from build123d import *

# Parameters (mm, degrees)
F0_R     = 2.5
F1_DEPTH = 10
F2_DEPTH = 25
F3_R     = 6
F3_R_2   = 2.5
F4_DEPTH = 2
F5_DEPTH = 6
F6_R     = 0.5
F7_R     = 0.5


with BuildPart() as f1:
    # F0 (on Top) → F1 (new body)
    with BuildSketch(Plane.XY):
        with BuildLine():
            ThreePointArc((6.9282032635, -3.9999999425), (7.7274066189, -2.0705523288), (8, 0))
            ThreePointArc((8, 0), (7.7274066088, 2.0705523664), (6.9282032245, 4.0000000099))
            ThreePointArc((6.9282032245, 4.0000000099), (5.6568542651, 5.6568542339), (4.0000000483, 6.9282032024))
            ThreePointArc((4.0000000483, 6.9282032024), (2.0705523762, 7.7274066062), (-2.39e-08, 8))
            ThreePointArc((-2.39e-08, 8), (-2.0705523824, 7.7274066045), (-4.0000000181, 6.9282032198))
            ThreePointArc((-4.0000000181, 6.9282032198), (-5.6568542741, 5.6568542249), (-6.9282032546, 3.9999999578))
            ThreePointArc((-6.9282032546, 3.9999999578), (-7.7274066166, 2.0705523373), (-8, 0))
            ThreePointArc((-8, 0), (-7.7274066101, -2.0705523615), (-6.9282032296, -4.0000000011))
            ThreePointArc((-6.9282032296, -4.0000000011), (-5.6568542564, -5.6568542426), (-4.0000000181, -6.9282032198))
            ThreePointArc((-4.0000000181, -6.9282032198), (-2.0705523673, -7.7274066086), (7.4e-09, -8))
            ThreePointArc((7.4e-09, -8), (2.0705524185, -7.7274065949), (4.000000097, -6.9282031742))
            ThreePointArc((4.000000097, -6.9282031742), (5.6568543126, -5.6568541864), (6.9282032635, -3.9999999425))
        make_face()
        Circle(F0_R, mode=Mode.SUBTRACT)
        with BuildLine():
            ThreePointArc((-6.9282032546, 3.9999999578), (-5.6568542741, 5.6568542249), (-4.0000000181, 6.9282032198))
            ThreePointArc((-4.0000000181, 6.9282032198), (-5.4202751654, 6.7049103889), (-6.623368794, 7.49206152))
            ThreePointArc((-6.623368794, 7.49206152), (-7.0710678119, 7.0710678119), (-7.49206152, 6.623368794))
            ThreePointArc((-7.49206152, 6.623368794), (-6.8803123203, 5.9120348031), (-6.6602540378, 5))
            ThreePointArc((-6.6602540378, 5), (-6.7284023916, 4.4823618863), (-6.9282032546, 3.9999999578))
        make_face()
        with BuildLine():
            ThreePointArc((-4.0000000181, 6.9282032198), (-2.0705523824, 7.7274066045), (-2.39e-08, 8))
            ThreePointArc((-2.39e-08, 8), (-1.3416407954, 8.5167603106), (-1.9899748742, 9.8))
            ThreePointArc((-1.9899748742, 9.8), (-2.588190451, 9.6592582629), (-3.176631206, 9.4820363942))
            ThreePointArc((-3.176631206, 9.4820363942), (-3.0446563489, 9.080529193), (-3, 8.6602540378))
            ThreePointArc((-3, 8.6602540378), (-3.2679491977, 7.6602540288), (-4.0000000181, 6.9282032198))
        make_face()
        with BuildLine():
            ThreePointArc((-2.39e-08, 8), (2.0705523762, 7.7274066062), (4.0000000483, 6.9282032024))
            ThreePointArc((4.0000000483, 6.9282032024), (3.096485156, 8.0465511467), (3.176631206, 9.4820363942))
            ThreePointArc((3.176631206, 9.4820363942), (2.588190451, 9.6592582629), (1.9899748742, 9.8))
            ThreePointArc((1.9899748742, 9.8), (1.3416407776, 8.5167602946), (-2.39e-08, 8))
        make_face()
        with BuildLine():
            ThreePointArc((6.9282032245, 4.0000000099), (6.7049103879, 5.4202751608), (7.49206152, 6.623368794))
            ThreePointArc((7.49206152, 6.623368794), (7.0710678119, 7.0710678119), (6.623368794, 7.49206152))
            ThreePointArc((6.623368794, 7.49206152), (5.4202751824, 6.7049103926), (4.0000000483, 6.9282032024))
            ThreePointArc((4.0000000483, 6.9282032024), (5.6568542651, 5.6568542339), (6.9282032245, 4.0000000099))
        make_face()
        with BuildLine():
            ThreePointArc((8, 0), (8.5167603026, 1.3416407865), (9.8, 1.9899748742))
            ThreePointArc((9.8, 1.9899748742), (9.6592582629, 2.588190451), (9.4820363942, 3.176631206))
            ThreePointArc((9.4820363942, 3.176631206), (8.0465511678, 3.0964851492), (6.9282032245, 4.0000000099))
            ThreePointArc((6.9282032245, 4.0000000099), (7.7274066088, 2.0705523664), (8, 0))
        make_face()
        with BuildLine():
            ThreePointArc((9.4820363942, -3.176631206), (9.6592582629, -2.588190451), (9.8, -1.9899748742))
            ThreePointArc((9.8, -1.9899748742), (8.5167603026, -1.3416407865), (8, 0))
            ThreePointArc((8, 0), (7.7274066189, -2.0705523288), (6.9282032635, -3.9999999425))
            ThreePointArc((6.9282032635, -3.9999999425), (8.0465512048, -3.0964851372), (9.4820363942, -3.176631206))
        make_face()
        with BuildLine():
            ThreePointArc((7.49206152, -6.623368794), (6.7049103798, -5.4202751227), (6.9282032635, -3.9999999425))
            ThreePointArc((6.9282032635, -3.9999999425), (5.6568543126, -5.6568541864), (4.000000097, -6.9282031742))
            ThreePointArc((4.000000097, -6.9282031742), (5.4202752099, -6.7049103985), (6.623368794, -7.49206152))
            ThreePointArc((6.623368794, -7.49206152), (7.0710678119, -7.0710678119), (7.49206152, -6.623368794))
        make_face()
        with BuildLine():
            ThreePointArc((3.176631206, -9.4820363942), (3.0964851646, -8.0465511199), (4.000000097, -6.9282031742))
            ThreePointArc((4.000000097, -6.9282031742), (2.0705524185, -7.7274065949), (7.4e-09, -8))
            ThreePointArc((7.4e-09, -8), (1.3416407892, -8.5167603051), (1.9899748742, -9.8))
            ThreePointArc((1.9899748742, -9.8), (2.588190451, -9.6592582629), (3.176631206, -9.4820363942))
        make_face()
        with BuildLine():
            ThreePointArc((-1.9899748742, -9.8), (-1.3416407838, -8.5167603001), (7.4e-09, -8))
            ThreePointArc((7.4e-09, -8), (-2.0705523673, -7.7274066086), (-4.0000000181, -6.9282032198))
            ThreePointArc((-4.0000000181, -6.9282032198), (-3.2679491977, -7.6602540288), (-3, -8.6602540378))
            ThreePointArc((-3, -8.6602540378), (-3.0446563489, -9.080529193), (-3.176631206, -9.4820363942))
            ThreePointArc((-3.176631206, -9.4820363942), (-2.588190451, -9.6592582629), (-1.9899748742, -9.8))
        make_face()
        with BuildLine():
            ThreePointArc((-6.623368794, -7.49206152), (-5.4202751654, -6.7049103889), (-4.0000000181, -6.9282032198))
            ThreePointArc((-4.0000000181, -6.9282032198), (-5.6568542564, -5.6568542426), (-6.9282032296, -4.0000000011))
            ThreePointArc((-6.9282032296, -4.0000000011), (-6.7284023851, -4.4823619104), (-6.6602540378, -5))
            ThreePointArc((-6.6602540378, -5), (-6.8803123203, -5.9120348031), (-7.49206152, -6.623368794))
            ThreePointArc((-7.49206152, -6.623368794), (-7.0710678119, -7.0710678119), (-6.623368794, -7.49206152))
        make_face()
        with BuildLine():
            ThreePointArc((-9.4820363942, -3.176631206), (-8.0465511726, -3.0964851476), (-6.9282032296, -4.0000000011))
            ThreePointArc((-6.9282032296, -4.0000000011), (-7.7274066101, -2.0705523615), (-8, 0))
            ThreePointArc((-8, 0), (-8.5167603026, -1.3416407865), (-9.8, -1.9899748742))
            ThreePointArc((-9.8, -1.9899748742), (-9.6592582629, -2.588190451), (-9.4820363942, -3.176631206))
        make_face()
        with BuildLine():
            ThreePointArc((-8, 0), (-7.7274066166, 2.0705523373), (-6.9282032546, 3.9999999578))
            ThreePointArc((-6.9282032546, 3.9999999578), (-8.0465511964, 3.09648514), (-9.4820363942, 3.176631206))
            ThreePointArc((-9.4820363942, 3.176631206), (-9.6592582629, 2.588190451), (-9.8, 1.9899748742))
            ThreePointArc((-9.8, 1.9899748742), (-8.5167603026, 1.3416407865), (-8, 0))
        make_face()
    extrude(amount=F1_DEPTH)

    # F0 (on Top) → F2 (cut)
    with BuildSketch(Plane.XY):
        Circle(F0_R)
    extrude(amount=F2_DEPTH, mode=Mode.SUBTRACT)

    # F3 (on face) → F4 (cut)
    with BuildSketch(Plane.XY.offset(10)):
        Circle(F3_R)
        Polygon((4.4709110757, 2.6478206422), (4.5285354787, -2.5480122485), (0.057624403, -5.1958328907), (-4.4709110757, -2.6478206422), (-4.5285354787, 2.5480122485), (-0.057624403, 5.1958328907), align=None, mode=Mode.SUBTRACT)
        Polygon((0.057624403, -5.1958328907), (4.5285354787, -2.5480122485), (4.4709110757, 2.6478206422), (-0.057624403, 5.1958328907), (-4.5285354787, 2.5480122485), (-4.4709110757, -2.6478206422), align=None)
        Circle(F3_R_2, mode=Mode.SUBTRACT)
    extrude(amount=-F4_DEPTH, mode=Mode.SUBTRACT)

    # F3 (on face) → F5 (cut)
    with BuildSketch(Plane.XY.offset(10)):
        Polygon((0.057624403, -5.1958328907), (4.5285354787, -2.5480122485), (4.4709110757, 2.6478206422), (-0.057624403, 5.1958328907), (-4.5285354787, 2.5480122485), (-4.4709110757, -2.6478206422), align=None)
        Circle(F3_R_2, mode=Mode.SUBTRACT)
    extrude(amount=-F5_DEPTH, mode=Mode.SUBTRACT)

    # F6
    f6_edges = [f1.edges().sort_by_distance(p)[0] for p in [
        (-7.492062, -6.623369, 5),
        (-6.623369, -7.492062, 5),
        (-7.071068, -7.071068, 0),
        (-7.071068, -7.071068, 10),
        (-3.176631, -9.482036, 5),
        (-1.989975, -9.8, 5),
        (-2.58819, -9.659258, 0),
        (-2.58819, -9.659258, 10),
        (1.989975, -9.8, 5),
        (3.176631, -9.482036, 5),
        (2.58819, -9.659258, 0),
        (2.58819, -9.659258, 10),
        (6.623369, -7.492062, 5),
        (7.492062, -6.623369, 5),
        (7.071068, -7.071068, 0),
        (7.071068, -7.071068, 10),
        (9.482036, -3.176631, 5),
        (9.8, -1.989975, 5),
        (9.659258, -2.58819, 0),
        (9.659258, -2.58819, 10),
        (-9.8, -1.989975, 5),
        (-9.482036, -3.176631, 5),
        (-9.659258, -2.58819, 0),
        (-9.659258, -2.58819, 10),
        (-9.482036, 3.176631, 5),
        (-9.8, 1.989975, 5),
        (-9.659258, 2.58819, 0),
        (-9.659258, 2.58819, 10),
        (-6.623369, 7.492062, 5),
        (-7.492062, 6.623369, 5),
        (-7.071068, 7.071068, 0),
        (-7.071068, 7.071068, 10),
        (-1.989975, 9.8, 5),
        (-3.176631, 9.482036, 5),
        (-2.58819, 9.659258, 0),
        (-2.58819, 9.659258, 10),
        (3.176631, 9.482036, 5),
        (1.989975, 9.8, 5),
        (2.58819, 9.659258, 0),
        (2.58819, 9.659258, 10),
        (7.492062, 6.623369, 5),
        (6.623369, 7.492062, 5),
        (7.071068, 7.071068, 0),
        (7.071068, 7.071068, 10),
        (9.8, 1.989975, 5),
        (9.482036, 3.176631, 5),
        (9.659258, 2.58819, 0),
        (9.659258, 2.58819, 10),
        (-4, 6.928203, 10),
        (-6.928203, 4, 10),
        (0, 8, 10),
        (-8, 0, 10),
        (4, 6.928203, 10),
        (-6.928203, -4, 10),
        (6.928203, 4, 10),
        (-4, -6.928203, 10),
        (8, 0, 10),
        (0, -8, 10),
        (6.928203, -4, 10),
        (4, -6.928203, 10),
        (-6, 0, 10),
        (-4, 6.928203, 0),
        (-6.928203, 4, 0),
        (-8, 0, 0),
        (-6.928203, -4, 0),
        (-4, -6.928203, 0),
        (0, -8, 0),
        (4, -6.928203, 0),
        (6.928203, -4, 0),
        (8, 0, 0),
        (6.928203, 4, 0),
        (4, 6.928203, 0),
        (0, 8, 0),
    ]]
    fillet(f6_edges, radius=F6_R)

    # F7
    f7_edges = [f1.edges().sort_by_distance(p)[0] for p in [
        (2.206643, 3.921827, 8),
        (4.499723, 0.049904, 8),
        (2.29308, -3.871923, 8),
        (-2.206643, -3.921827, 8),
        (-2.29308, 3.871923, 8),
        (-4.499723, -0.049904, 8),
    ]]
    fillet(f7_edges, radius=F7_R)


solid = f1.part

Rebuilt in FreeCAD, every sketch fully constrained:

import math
import FreeCAD as App
import Part
import Sketcher

V = App.Vector
Q = App.Units.Quantity


def edges_at(feature, points):
    """Names of the edges that pass closest to the given points."""
    edges = feature.Shape.Edges
    near = lambda p: min(range(len(edges)), key=lambda i: edges[i].distToShape(Part.Vertex(*p))[0])
    return sorted({f"Edge{near(p) + 1}" for p in points})


def add_polygon(sketch, points):
    """Adds a closed chain of lines whose ends are joined by coincident constraints."""
    first, n = sketch.GeometryCount, len(points)
    for a, b in zip(points, points[1:] + points[:1]):
        sketch.addGeometry(Part.LineSegment(App.Vector(*a, 0), App.Vector(*b, 0)), False)
    for i in range(n):
        sketch.addConstraint(Sketcher.Constraint("Coincident", first + i, 2, first + (i + 1) % n, 1))

doc = App.newDocument("Part")
body = doc.addObject("PartDesign::Body", "Body")

# Sketch on XY plane
sketch1 = doc.addObject("Sketcher::SketchObject", "Sketch")
body.addObject(sketch1)
sketch1.AttachmentSupport = (doc.XY_Plane, [""])
sketch1.MapMode = "FlatFace"
sketch1.addGeometry(Part.ArcOfCircle(Part.Circle(V(8.7, 5, 0), V(0, 0, 1), 2), math.radians(126), math.radians(210)), False)
sketch1.addGeometry(Part.ArcOfCircle(Part.Circle(V(0, 0, 0), V(0, 0, 1), 10), math.radians(41.48), math.radians(48.52)), False)
sketch1.addGeometry(Part.ArcOfCircle(Part.Circle(V(5, 8.7, 0), V(0, 0, 1), 2), math.radians(-120), math.radians(-36)), False)
sketch1.addGeometry(Part.ArcOfCircle(Part.Circle(V(5, 8.7, 0), V(0, 0, 1), 2), math.radians(156), math.radians(240)), False)
sketch1.addGeometry(Part.ArcOfCircle(Part.Circle(V(0, 0, 0), V(0, 0, 1), 10), math.radians(71.48), math.radians(78.52)), False)
sketch1.addGeometry(Part.ArcOfCircle(Part.Circle(V(0, 10, 0), V(0, 0, 1), 2), math.radians(-90), math.radians(-6)), False)
sketch1.addGeometry(Part.ArcOfCircle(Part.Circle(V(0, 10, 0), V(0, 0, 1), 2), math.radians(-174), math.radians(-90)), False)
sketch1.addGeometry(Part.ArcOfCircle(Part.Circle(V(0, 0, 0), V(0, 0, 1), 10), math.radians(101.48), math.radians(108.52)), False)
sketch1.addGeometry(Part.ArcOfCircle(Part.Circle(V(-5, 8.7, 0), V(0, 0, 1), 2), math.radians(0), math.radians(24)), False)
sketch1.addGeometry(Part.ArcOfCircle(Part.Circle(V(-5, 8.7, 0), V(0, 0, 1), 2), math.radians(-60), math.radians(0)), False)
sketch1.addGeometry(Part.ArcOfCircle(Part.Circle(V(-5, 8.7, 0), V(0, 0, 1), 2), math.radians(-144), math.radians(-60)), False)
sketch1.addGeometry(Part.ArcOfCircle(Part.Circle(V(0, 0, 0), V(0, 0, 1), 10), math.radians(131.48), math.radians(138.52)), False)
sketch1.addGeometry(Part.ArcOfCircle(Part.Circle(V(-8.7, 5, 0), V(0, 0, 1), 2), math.radians(0), math.radians(54)), False)
sketch1.addGeometry(Part.ArcOfCircle(Part.Circle(V(-8.7, 5, 0), V(0, 0, 1), 2), math.radians(-30), math.radians(0)), False)
sketch1.addGeometry(Part.ArcOfCircle(Part.Circle(V(-8.7, 5, 0), V(0, 0, 1), 2), math.radians(-114), math.radians(-30)), False)
sketch1.addGeometry(Part.ArcOfCircle(Part.Circle(V(0, 0, 0), V(0, 0, 1), 10), math.radians(161.48), math.radians(168.52)), False)
sketch1.addGeometry(Part.ArcOfCircle(Part.Circle(V(-10, 0, 0), V(0, 0, 1), 2), math.radians(0), math.radians(84)), False)
sketch1.addGeometry(Part.ArcOfCircle(Part.Circle(V(-10, 0, 0), V(0, 0, 1), 2), math.radians(-84), math.radians(0)), False)
sketch1.addGeometry(Part.ArcOfCircle(Part.Circle(V(0, 0, 0), V(0, 0, 1), 10), math.radians(-168.52), math.radians(-161.48)), False)
sketch1.addGeometry(Part.ArcOfCircle(Part.Circle(V(-8.7, -5, 0), V(0, 0, 1), 2), math.radians(30), math.radians(114)), False)
sketch1.addGeometry(Part.ArcOfCircle(Part.Circle(V(-8.7, -5, 0), V(0, 0, 1), 2), math.radians(0), math.radians(30)), False)
sketch1.addGeometry(Part.ArcOfCircle(Part.Circle(V(-8.7, -5, 0), V(0, 0, 1), 2), math.radians(-54), math.radians(0)), False)
sketch1.addGeometry(Part.ArcOfCircle(Part.Circle(V(0, 0, 0), V(0, 0, 1), 10), math.radians(-138.52), math.radians(-131.48)), False)
sketch1.addGeometry(Part.ArcOfCircle(Part.Circle(V(-5, -8.7, 0), V(0, 0, 1), 2), math.radians(60), math.radians(144)), False)
sketch1.addGeometry(Part.ArcOfCircle(Part.Circle(V(-5, -8.7, 0), V(0, 0, 1), 2), math.radians(0), math.radians(60)), False)
sketch1.addGeometry(Part.ArcOfCircle(Part.Circle(V(-5, -8.7, 0), V(0, 0, 1), 2), math.radians(-24), math.radians(0)), False)
sketch1.addGeometry(Part.ArcOfCircle(Part.Circle(V(0, 0, 0), V(0, 0, 1), 10), math.radians(-108.52), math.radians(-101.48)), False)
sketch1.addGeometry(Part.ArcOfCircle(Part.Circle(V(0, -10, 0), V(0, 0, 1), 2), math.radians(90), math.radians(174)), False)
sketch1.addGeometry(Part.ArcOfCircle(Part.Circle(V(0, -10, 0), V(0, 0, 1), 2), math.radians(6), math.radians(90)), False)
sketch1.addGeometry(Part.ArcOfCircle(Part.Circle(V(0, 0, 0), V(0, 0, 1), 10), math.radians(-78.52), math.radians(-71.48)), False)
sketch1.addGeometry(Part.ArcOfCircle(Part.Circle(V(5, -8.7, 0), V(0, 0, 1), 2), math.radians(120), math.radians(204)), False)
sketch1.addGeometry(Part.ArcOfCircle(Part.Circle(V(5, -8.7, 0), V(0, 0, 1), 2), math.radians(36), math.radians(120)), False)
sketch1.addGeometry(Part.ArcOfCircle(Part.Circle(V(0, 0, 0), V(0, 0, 1), 10), math.radians(-48.52), math.radians(-41.48)), False)
sketch1.addGeometry(Part.ArcOfCircle(Part.Circle(V(8.7, -5, 0), V(0, 0, 1), 2), math.radians(150), math.radians(234)), False)
sketch1.addGeometry(Part.ArcOfCircle(Part.Circle(V(8.7, -5, 0), V(0, 0, 1), 2), math.radians(66), math.radians(150)), False)
sketch1.addGeometry(Part.ArcOfCircle(Part.Circle(V(0, 0, 0), V(0, 0, 1), 10), math.radians(-18.52), math.radians(-11.48)), False)
sketch1.addGeometry(Part.ArcOfCircle(Part.Circle(V(10, 0, 0), V(0, 0, 1), 2), math.radians(180), math.radians(264)), False)
sketch1.addGeometry(Part.ArcOfCircle(Part.Circle(V(10, 0, 0), V(0, 0, 1), 2), math.radians(96), math.radians(180)), False)
sketch1.addGeometry(Part.ArcOfCircle(Part.Circle(V(0, 0, 0), V(0, 0, 1), 10), math.radians(11.48), math.radians(18.52)), False)
sketch1.addGeometry(Part.ArcOfCircle(Part.Circle(V(8.7, 5, 0), V(0, 0, 1), 2), math.radians(-150), math.radians(-66)), False)
sketch1.addGeometry(Part.Circle(V(0, 0, 0), V(0, 0, 1), 2.5), False)
sketch1.addConstraint(Sketcher.Constraint("Coincident", 0, 1, 1, 1))
sketch1.addConstraint(Sketcher.Constraint("Coincident", 1, 2, 2, 2))
sketch1.addConstraint(Sketcher.Constraint("Tangent", 2, 1, 3, 2))
sketch1.addConstraint(Sketcher.Constraint("Coincident", 3, 1, 4, 1))
sketch1.addConstraint(Sketcher.Constraint("Coincident", 4, 2, 5, 2))
sketch1.addConstraint(Sketcher.Constraint("Tangent", 5, 1, 6, 2))
sketch1.addConstraint(Sketcher.Constraint("Coincident", 6, 1, 7, 1))
sketch1.addConstraint(Sketcher.Constraint("Coincident", 7, 2, 8, 2))
sketch1.addConstraint(Sketcher.Constraint("Tangent", 8, 1, 9, 2))
sketch1.addConstraint(Sketcher.Constraint("Tangent", 9, 1, 10, 2))
sketch1.addConstraint(Sketcher.Constraint("Coincident", 10, 1, 11, 1))
sketch1.addConstraint(Sketcher.Constraint("Coincident", 11, 2, 12, 2))
sketch1.addConstraint(Sketcher.Constraint("Tangent", 12, 1, 13, 2))
sketch1.addConstraint(Sketcher.Constraint("Tangent", 13, 1, 14, 2))
sketch1.addConstraint(Sketcher.Constraint("Coincident", 14, 1, 15, 1))
sketch1.addConstraint(Sketcher.Constraint("Coincident", 15, 2, 16, 2))
sketch1.addConstraint(Sketcher.Constraint("Tangent", 16, 1, 17, 2))
sketch1.addConstraint(Sketcher.Constraint("Coincident", 17, 1, 18, 1))
sketch1.addConstraint(Sketcher.Constraint("Coincident", 18, 2, 19, 2))
sketch1.addConstraint(Sketcher.Constraint("Tangent", 19, 1, 20, 2))
sketch1.addConstraint(Sketcher.Constraint("Tangent", 20, 1, 21, 2))
sketch1.addConstraint(Sketcher.Constraint("Coincident", 21, 1, 22, 1))
sketch1.addConstraint(Sketcher.Constraint("Coincident", 22, 2, 23, 2))
sketch1.addConstraint(Sketcher.Constraint("Tangent", 23, 1, 24, 2))
sketch1.addConstraint(Sketcher.Constraint("Tangent", 24, 1, 25, 2))
sketch1.addConstraint(Sketcher.Constraint("Coincident", 25, 1, 26, 1))
sketch1.addConstraint(Sketcher.Constraint("Coincident", 26, 2, 27, 2))
sketch1.addConstraint(Sketcher.Constraint("Tangent", 27, 1, 28, 2))
sketch1.addConstraint(Sketcher.Constraint("Coincident", 28, 1, 29, 1))
sketch1.addConstraint(Sketcher.Constraint("Coincident", 29, 2, 30, 2))
sketch1.addConstraint(Sketcher.Constraint("Tangent", 30, 1, 31, 2))
sketch1.addConstraint(Sketcher.Constraint("Coincident", 31, 1, 32, 1))
sketch1.addConstraint(Sketcher.Constraint("Coincident", 32, 2, 33, 2))
sketch1.addConstraint(Sketcher.Constraint("Tangent", 33, 1, 34, 2))
sketch1.addConstraint(Sketcher.Constraint("Coincident", 34, 1, 35, 1))
sketch1.addConstraint(Sketcher.Constraint("Coincident", 35, 2, 36, 2))
sketch1.addConstraint(Sketcher.Constraint("Tangent", 36, 1, 37, 2))
sketch1.addConstraint(Sketcher.Constraint("Coincident", 37, 1, 38, 1))
sketch1.addConstraint(Sketcher.Constraint("Coincident", 38, 2, 39, 2))
sketch1.addConstraint(Sketcher.Constraint("Tangent", 39, 1, 0, 2))
sketch1.addConstraint(Sketcher.Constraint("Coincident", 1, 3, -1, 1))
sketch1.addConstraint(Sketcher.Constraint("Coincident", 4, 3, -1, 1))
sketch1.addConstraint(Sketcher.Constraint("Coincident", 7, 3, -1, 1))
sketch1.addConstraint(Sketcher.Constraint("Coincident", 11, 3, -1, 1))
sketch1.addConstraint(Sketcher.Constraint("Coincident", 15, 3, -1, 1))
sketch1.addConstraint(Sketcher.Constraint("Coincident", 18, 3, -1, 1))
sketch1.addConstraint(Sketcher.Constraint("Coincident", 22, 3, -1, 1))
sketch1.addConstraint(Sketcher.Constraint("Coincident", 26, 3, -1, 1))
sketch1.addConstraint(Sketcher.Constraint("Coincident", 29, 3, -1, 1))
sketch1.addConstraint(Sketcher.Constraint("Coincident", 32, 3, -1, 1))
sketch1.addConstraint(Sketcher.Constraint("Coincident", 35, 3, -1, 1))
sketch1.addConstraint(Sketcher.Constraint("Coincident", 38, 3, -1, 1))
sketch1.addConstraint(Sketcher.Constraint("Coincident", 40, 3, -1, 1))
sketch1.addConstraint(Sketcher.Constraint("Coincident", 10, 3, 8, 3))
sketch1.addConstraint(Sketcher.Constraint("Coincident", 14, 3, 12, 3))
sketch1.addConstraint(Sketcher.Constraint("Coincident", 21, 3, 19, 3))
sketch1.addConstraint(Sketcher.Constraint("Coincident", 25, 3, 23, 3))
sketch1.addConstraint(Sketcher.Constraint("Equal", 0, 2))
sketch1.addConstraint(Sketcher.Constraint("Equal", 2, 3))
sketch1.addConstraint(Sketcher.Constraint("Equal", 1, 4))
sketch1.addConstraint(Sketcher.Constraint("Equal", 3, 5))
sketch1.addConstraint(Sketcher.Constraint("Equal", 5, 6))
sketch1.addConstraint(Sketcher.Constraint("Equal", 4, 7))
sketch1.addConstraint(Sketcher.Constraint("Equal", 6, 8))
sketch1.addConstraint(Sketcher.Constraint("Equal", 7, 11))
sketch1.addConstraint(Sketcher.Constraint("Equal", 10, 12))
sketch1.addConstraint(Sketcher.Constraint("Equal", 11, 15))
sketch1.addConstraint(Sketcher.Constraint("Equal", 14, 16))
sketch1.addConstraint(Sketcher.Constraint("Equal", 16, 17))
sketch1.addConstraint(Sketcher.Constraint("Equal", 15, 18))
sketch1.addConstraint(Sketcher.Constraint("Equal", 17, 19))
sketch1.addConstraint(Sketcher.Constraint("Equal", 18, 22))
sketch1.addConstraint(Sketcher.Constraint("Equal", 21, 23))
sketch1.addConstraint(Sketcher.Constraint("Equal", 22, 26))
sketch1.addConstraint(Sketcher.Constraint("Equal", 25, 27))
sketch1.addConstraint(Sketcher.Constraint("Equal", 27, 28))
sketch1.addConstraint(Sketcher.Constraint("Equal", 26, 29))
sketch1.addConstraint(Sketcher.Constraint("Equal", 28, 30))
sketch1.addConstraint(Sketcher.Constraint("Equal", 30, 31))
sketch1.addConstraint(Sketcher.Constraint("Equal", 29, 32))
sketch1.addConstraint(Sketcher.Constraint("Equal", 31, 33))
sketch1.addConstraint(Sketcher.Constraint("Equal", 33, 34))
sketch1.addConstraint(Sketcher.Constraint("Equal", 32, 35))
sketch1.addConstraint(Sketcher.Constraint("Equal", 34, 36))
sketch1.addConstraint(Sketcher.Constraint("Equal", 36, 37))
sketch1.addConstraint(Sketcher.Constraint("Equal", 35, 38))
sketch1.addConstraint(Sketcher.Constraint("Equal", 37, 39))
sketch1.addConstraint(Sketcher.Constraint("Symmetric", 0, 3, 19, 3, -1, 1))
sketch1.addConstraint(Sketcher.Constraint("Symmetric", 2, 3, 23, 3, -1, 1))
sketch1.addConstraint(Sketcher.Constraint("Symmetric", 5, 3, 27, 3, -1, 1))
sketch1.addConstraint(Sketcher.Constraint("Symmetric", 8, 3, 30, 3, -1, 1))
sketch1.addConstraint(Sketcher.Constraint("Symmetric", 12, 3, 33, 3, -1, 1))
sketch1.addConstraint(Sketcher.Constraint("Symmetric", 16, 3, 36, 3, -1, 1))
sketch1.addConstraint(Sketcher.Constraint("Symmetric", 2, 3, 8, 3, -2))
sketch1.addConstraint(Sketcher.Constraint("Symmetric", 0, 3, 12, 3, -2))
sketch1.addConstraint(Sketcher.Constraint("PointOnObject", 5, 3, -2))
sketch1.addConstraint(Sketcher.Constraint("PointOnObject", 16, 3, -1))
sketch1.addConstraint(Sketcher.Constraint("PointOnObject", 5, 1, -2))
sketch1.addConstraint(Sketcher.Constraint("PointOnObject", 16, 1, -1))
sketch1.addConstraint(Sketcher.Constraint("PointOnObject", 27, 1, -2))
sketch1.addConstraint(Sketcher.Constraint("PointOnObject", 36, 1, -1))
sketch1.addConstraint(Sketcher.Constraint("Horizontal", 10, 3, 8, 1))
sketch1.addConstraint(Sketcher.Constraint("Horizontal", 2, 1, 9, 1))
sketch1.addConstraint(Sketcher.Constraint("Horizontal", 39, 3, 12, 1))
sketch1.addConstraint(Sketcher.Constraint("Horizontal", 34, 3, 20, 1))
sketch1.addConstraint(Sketcher.Constraint("Horizontal", 31, 3, 24, 1))
sketch1.addConstraint(Sketcher.Constraint("Horizontal", 23, 1, 30, 1))
sketch1.addConstraint(Sketcher.Constraint("Horizontal", 19, 1, 33, 1))
sketch1.addConstraint(Sketcher.Constraint("Horizontal", 13, 1, 39, 1))
sketch1.addConstraint(Sketcher.Constraint("Vertical", 13, 1, 19, 1))
sketch1.addConstraint(Sketcher.Constraint("Vertical", 9, 1, 23, 1))
sketch1.addConstraint(Sketcher.Constraint("Diameter", 40, Q("5 mm")))
sketch1.addConstraint(Sketcher.Constraint("Radius", 0, Q("2 mm")))
sketch1.addConstraint(Sketcher.Constraint("Radius", 1, Q("10 mm")))
sketch1.addConstraint(Sketcher.Constraint("DistanceY", -1, 1, 0, 3, Q("5 mm")))
sketch1.addConstraint(Sketcher.Constraint("DistanceX", -1, 1, 2, 3, Q("5 mm")))
sketch1.addConstraint(Sketcher.Constraint("DistanceY", -1, 1, 5, 3, Q("10 mm")))
sketch1.addConstraint(Sketcher.Constraint("DistanceX", 16, 3, -1, 1, Q("10 mm")))
sketch1.addConstraint(Sketcher.Constraint("DistanceX", -1, 1, 2, 1, Q("4 mm")))
sketch1.addConstraint(Sketcher.Constraint("DistanceY", -1, 1, 13, 1, Q("4 mm")))
sketch1.addConstraint(Sketcher.Constraint("DistanceX", -1, 1, 0, 1, Q("7.492062 mm")))
sketch1.addConstraint(Sketcher.Constraint("DistanceX", -1, 1, 1, 2, Q("6.623369 mm")))
pad1 = doc.addObject("PartDesign::Pad", "Pad")
body.addObject(pad1)
pad1.Profile = sketch1
pad1.Length = 10

# Sketch on XY plane
sketch2 = doc.addObject("Sketcher::SketchObject", "Sketch001")
body.addObject(sketch2)
sketch2.AttachmentSupport = (doc.XY_Plane, [""])
sketch2.MapMode = "FlatFace"
sketch2.addGeometry(Part.Circle(V(0, 0, 0), V(0, 0, 1), 2.5), False)
sketch2.addConstraint(Sketcher.Constraint("Coincident", 0, 3, -1, 1))
sketch2.addConstraint(Sketcher.Constraint("Diameter", 0, Q("5 mm")))
pocket1 = doc.addObject("PartDesign::Pocket", "Pocket")
body.addObject(pocket1)
pocket1.Profile = sketch2
pocket1.Length = 25
pocket1.Reversed = True

# Sketch on XY plane
sketch3 = doc.addObject("Sketcher::SketchObject", "Sketch002")
body.addObject(sketch3)
sketch3.AttachmentSupport = (doc.XY_Plane, [""])
sketch3.MapMode = "FlatFace"
sketch3.AttachmentOffset = App.Placement(V(0, 0, 10), App.Rotation())
sketch3.addGeometry(Part.Circle(V(0, 0, 0), V(0, 0, 1), 6), False)
sketch3.addGeometry(Part.Circle(V(0, 0, 0), V(0, 0, 1), 2.5), False)
sketch3.addConstraint(Sketcher.Constraint("Coincident", 0, 3, -1, 1))
sketch3.addConstraint(Sketcher.Constraint("Coincident", 1, 3, -1, 1))
sketch3.addConstraint(Sketcher.Constraint("Diameter", 0, Q("12 mm")))
sketch3.addConstraint(Sketcher.Constraint("Diameter", 1, Q("5 mm")))
pocket2 = doc.addObject("PartDesign::Pocket", "Pocket001")
body.addObject(pocket2)
pocket2.Profile = sketch3
pocket2.Length = 2

# Sketch on XY plane
sketch4 = doc.addObject("Sketcher::SketchObject", "Sketch003")
body.addObject(sketch4)
sketch4.AttachmentSupport = (doc.XY_Plane, [""])
sketch4.MapMode = "FlatFace"
sketch4.AttachmentOffset = App.Placement(V(0, 0, 10), App.Rotation())
add_polygon(sketch4, [(0.1, -5.2), (4.5, -2.5), (4.5, 2.6), (-0.1, 5.2), (-4.5, 2.5), (-4.5, -2.6)])  # lines 0-5
sketch4.addGeometry(Part.Circle(V(0, 0, 0), V(0, 0, 1), 2.5), False)  # 6
sketch4.addConstraint(Sketcher.Constraint("Coincident", 6, 3, -1, 1))
sketch4.addConstraint(Sketcher.Constraint("Symmetric", 0, 2, 3, 2, -1, 1))
sketch4.addConstraint(Sketcher.Constraint("Symmetric", 1, 2, 4, 2, -1, 1))
sketch4.addConstraint(Sketcher.Constraint("Symmetric", 2, 2, 5, 2, -1, 1))
sketch4.addConstraint(Sketcher.Constraint("Equal", 0, 1))
sketch4.addConstraint(Sketcher.Constraint("Equal", 1, 2))
sketch4.addConstraint(Sketcher.Constraint("Diameter", 6, Q("5 mm")))
sketch4.addConstraint(Sketcher.Constraint("DistanceX", -1, 1, 1, 2, Q("4.470911 mm")))
sketch4.addConstraint(Sketcher.Constraint("DistanceY", -1, 1, 1, 2, Q("2.647821 mm")))
sketch4.addConstraint(Sketcher.Constraint("DistanceX", 2, 2, 0, 2, Q("4.58616 mm")))
sketch4.addConstraint(Sketcher.Constraint("DistanceX", 3, 2, 2, 2, Q("4.470911 mm")))
pocket3 = doc.addObject("PartDesign::Pocket", "Pocket002")
body.addObject(pocket3)
pocket3.Profile = sketch4
pocket3.Length = 6
doc.recompute()

fillet = doc.addObject("PartDesign::Fillet", "Fillet")
body.addObject(fillet)
fillet.Base = (pocket3, edges_at(pocket3, [
    (-7.492, -6.623, 5),
    (-6.623, -7.492, 5),
    (-7.071, -7.071, 0),
    (-7.071, -7.071, 10),
    (-3.177, -9.482, 5),
    (-1.99, -9.8, 5),
    (-2.588, -9.659, 0),
    (-2.588, -9.659, 10),
    (1.99, -9.8, 5),
    (3.177, -9.482, 5),
    (2.588, -9.659, 0),
    (2.588, -9.659, 10),
    (6.623, -7.492, 5),
    (7.492, -6.623, 5),
    (7.071, -7.071, 0),
    (7.071, -7.071, 10),
    (9.482, -3.177, 5),
    (9.8, -1.99, 5),
    (9.659, -2.588, 0),
    (9.659, -2.588, 10),
    (-9.8, -1.99, 5),
    (-9.482, -3.177, 5),
    (-9.659, -2.588, 0),
    (-9.659, -2.588, 10),
    (-9.482, 3.177, 5),
    (-9.8, 1.99, 5),
    (-9.659, 2.588, 0),
    (-9.659, 2.588, 10),
    (-6.623, 7.492, 5),
    (-7.492, 6.623, 5),
    (-7.071, 7.071, 0),
    (-7.071, 7.071, 10),
    (-1.99, 9.8, 5),
    (-3.177, 9.482, 5),
    (-2.588, 9.659, 0),
    (-2.588, 9.659, 10),
    (3.177, 9.482, 5),
    (1.99, 9.8, 5),
    (2.588, 9.659, 0),
    (2.588, 9.659, 10),
    (7.492, 6.623, 5),
    (6.623, 7.492, 5),
    (7.071, 7.071, 0),
    (7.071, 7.071, 10),
    (9.8, 1.99, 5),
    (9.482, 3.177, 5),
    (9.659, 2.588, 0),
    (9.659, 2.588, 10),
    (-3.268, 7.66, 10),
    (-6.728, 4.482, 10),
    (1.342, 8.517, 10),
    (-8.517, 1.342, 10),
    (5.42, 6.705, 10),
    (-6.728, -4.482, 10),
    (6.705, 5.42, 10),
    (-5.42, -6.705, 10),
    (8.517, 1.342, 10),
    (-1.342, -8.517, 10),
    (6.705, -5.42, 10),
    (3.096, -8.047, 10),
    (-6, 0, 10),
    (-3.268, 7.66, 0),
    (-6.728, 4.482, 0),
    (-8.517, 1.342, 0),
    (-6.728, -4.482, 0),
    (-5.42, -6.705, 0),
    (-1.342, -8.517, 0),
    (3.096, -8.047, 0),
    (6.705, -5.42, 0),
    (8.517, -1.342, 0),
    (6.705, 5.42, 0),
    (5.42, 6.705, 0),
    (1.342, 8.517, 0),
]))
fillet.Radius = 0.5
doc.recompute()

fillet2 = doc.addObject("PartDesign::Fillet", "Fillet001")
body.addObject(fillet2)
fillet2.Base = (fillet, edges_at(fillet, [
    (2.207, 3.922, 8),
    (4.5, 0.05, 8),
    (2.293, -3.872, 8),
    (-2.207, -3.922, 8),
    (-2.293, 3.872, 8),
    (-4.5, -0.05, 8),
]))
fillet2.Radius = 0.5

doc.recompute()
